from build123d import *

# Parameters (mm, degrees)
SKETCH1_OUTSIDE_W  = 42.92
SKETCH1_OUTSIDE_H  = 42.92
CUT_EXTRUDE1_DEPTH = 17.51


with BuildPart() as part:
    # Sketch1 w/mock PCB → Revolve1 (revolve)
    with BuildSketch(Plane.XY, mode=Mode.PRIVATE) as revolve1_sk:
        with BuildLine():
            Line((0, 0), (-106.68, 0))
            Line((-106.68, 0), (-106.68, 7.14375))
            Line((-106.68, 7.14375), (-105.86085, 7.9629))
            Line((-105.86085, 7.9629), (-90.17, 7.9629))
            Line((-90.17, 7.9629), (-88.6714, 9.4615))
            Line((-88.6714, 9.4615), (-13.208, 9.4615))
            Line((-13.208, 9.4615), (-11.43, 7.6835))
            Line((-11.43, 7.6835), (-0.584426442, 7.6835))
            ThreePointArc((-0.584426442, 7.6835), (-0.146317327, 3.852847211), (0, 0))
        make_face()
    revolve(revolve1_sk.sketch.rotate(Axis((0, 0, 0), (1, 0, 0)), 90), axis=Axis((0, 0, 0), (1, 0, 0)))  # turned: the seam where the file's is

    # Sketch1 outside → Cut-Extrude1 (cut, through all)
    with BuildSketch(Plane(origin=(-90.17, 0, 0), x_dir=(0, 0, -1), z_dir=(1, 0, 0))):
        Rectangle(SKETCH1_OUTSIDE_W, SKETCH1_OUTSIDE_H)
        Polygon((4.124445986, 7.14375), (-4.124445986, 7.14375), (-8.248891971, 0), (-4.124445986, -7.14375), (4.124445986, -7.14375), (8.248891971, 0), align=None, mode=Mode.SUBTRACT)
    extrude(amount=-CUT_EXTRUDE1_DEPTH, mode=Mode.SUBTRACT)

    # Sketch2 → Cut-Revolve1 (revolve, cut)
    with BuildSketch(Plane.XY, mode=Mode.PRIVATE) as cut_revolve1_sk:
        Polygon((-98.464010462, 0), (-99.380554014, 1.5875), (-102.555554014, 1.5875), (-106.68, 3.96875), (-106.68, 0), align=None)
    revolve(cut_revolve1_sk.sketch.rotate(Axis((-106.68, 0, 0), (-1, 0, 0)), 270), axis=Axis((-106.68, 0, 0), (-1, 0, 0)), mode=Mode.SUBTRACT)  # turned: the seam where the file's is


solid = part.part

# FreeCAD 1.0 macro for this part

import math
import FreeCAD as App
import Part
import Sketcher
from FreeCAD import Vector
Q = App.Units.Quantity


def add_polygon(sketch, points):
    """Adds a closed chain of lines whose ends are joined by coincident constraints."""
    first, n = sketch.GeometryCount, len(points)
    for a, b in zip(points, points[1:] + points[:1]):
        sketch.addGeometry(Part.LineSegment(App.Vector(*a, 0), App.Vector(*b, 0)), False)
    for i in range(n):
        sketch.addConstraint(Sketcher.Constraint("Coincident", first + i, 2, first + (i + 1) % n, 1))

doc = App.newDocument("Part")
body = doc.addObject("PartDesign::Body", "Body")

sketch1 = body.newObject("Sketcher::SketchObject", "Sketch")
sketch1.AttachmentSupport = (doc.getObject("XY_Plane"), [""])
sketch1.MapMode = "FlatFace"
sketch1.addGeometry([
    Part.LineSegment(Vector(-106.7, 0, 0), Vector(0, 0, 0)),
    Part.ArcOfCircle(Part.Circle(Vector(-50.8, 0, 0), Vector(0, 0, 1), 50.8), math.radians(0), math.radians(8.7)),
    Part.LineSegment(Vector(-0.6, 7.7, 0), Vector(-11.4, 7.7, 0)),
    Part.LineSegment(Vector(-11.4, 7.7, 0), Vector(-13.2, 9.5, 0)),
    Part.LineSegment(Vector(-13.2, 9.5, 0), Vector(-88.7, 9.5, 0)),
    Part.LineSegment(Vector(-88.7, 9.5, 0), Vector(-90.2, 8, 0)),
    Part.LineSegment(Vector(-90.2, 8, 0), Vector(-105.9, 8, 0)),
    Part.LineSegment(Vector(-105.9, 8, 0), Vector(-106.7, 7.1, 0)),
    Part.LineSegment(Vector(-106.7, 7.1, 0), Vector(-106.7, 0, 0)),
], False)
sketch1.addConstraint([
    Sketcher.Constraint("Coincident", 0, 2, 1, 1),
    Sketcher.Constraint("Coincident", 1, 2, 2, 1),
    Sketcher.Constraint("Coincident", 2, 2, 3, 1),
    Sketcher.Constraint("Coincident", 3, 2, 4, 1),
    Sketcher.Constraint("Coincident", 4, 2, 5, 1),
    Sketcher.Constraint("Coincident", 5, 2, 6, 1),
    Sketcher.Constraint("Coincident", 6, 2, 7, 1),
    Sketcher.Constraint("Coincident", 7, 2, 8, 1),
    Sketcher.Constraint("Coincident", 8, 2, 0, 1),
    Sketcher.Constraint("Horizontal", 0),
    Sketcher.Constraint("Horizontal", 2),
    Sketcher.Constraint("Horizontal", 4),
    Sketcher.Constraint("Horizontal", 6),
    Sketcher.Constraint("Vertical", 8),
    Sketcher.Constraint("Coincident", 0, 2, -1, 1),
    Sketcher.Constraint("PointOnObject", 1, 3, -1),
    Sketcher.Constraint("Perpendicular", 3, 5),
    Sketcher.Constraint("Parallel", 5, 7),
    Sketcher.Constraint("Radius", 1, Q("2 in")),
    Sketcher.Constraint("DistanceX", 0, 1, 0, 2, Q("4.2 in")),
    Sketcher.Constraint("Angle", 3, Q("135 deg")),
    Sketcher.Constraint("DistanceX", 5, 2, 2, 2, Q("3.1 in")),
    Sketcher.Constraint("DistanceX", 4, 2, 4, 1, Q("2.971 in")),
    Sketcher.Constraint("DistanceY", 8, 2, 8, 1, Q("0.28125 in")),
    Sketcher.Constraint("DistanceX", 2, 2, -1, 1, Q("0.45 in")),
    Sketcher.Constraint("DistanceX", 3, 2, -1, 1, Q("0.52 in")),
    Sketcher.Constraint("DistanceY", -1, 1, 1, 2, Q("0.3025 in")),
])
revolution = body.newObject("PartDesign::Revolution", "Revolution")
revolution.Profile = sketch1
revolution.ReferenceAxis = (sketch1, ["H_Axis"])
revolution.Angle = 360

sketch2 = body.newObject("Sketcher::SketchObject", "Sketch001")
sketch2.AttachmentSupport = (doc.getObject("YZ_Plane"), [""])
sketch2.MapMode = "FlatFace"
sketch2.AttachmentOffset = App.Placement(Vector(0, 0, -3.55 * 25.4), App.Rotation())
add_polygon(sketch2, [(21, 21), (-21, 21), (-21, -21), (21, -21)])
add_polygon(sketch2, [(7, 4), (7, -4), (0, -8), (-7, -4), (-7, 4), (0, 8)])
sketch2.addConstraint([
    Sketcher.Constraint("Horizontal", 0),
    Sketcher.Constraint("Vertical", 1),
    Sketcher.Constraint("Horizontal", 2),
    Sketcher.Constraint("Vertical", 3),
    Sketcher.Constraint("Vertical", 4),
    Sketcher.Constraint("Vertical", 7),
    Sketcher.Constraint("Symmetric", 0, 2, 2, 2, -1, 1),
    Sketcher.Constraint("Symmetric", 4, 2, 7, 2, -1, 1),
    Sketcher.Constraint("Symmetric", 5, 2, 8, 2, -1, 1),
    Sketcher.Constraint("PointOnObject", 5, 2, -2),
    Sketcher.Constraint("Parallel", 6, 9),
    Sketcher.Constraint("Horizontal", 4, 2, 6, 2),
    Sketcher.Constraint("Equal", 2, 1),
    Sketcher.Constraint("Angle", 5, Q("-150 deg")),
    Sketcher.Constraint("DistanceX", -1, 1, 4, 2, Q("0.28125 in")),
    Sketcher.Constraint("DistanceX", 0, 2, 0, 1, 42.92),
    Sketcher.Constraint("DistanceY", 4, 2, 4, 1, 8.248892),
])
pocket1 = body.newObject("PartDesign::Pocket", "Pocket")
pocket1.Profile = sketch2
pocket1.Type = "ThroughAll"

sketch3 = body.newObject("Sketcher::SketchObject", "Sketch002")
sketch3.AttachmentSupport = (doc.getObject("XY_Plane"), [""])
sketch3.MapMode = "FlatFace"
add_polygon(sketch3, [(-98.5, 0), (-99.4, 1.6), (-102.6, 1.6), (-106.7, 4), (-106.7, 0)])
sketch3.addConstraint([
    Sketcher.Constraint("Horizontal", 1),
    Sketcher.Constraint("Vertical", 3),
    Sketcher.Constraint("Horizontal", 4),
    Sketcher.Constraint("PointOnObject", 3, 2, -1),
    Sketcher.Constraint("Angle", 0, Q("120 deg")),
    Sketcher.Constraint("Angle", 2, Q("150 deg")),
    Sketcher.Constraint("DistanceX", 2, 2, -1, 1, Q("4.2 in")),
    Sketcher.Constraint("DistanceX", 1, 2, 1, 1, Q("0.125 in")),
    Sketcher.Constraint("DistanceY", 3, 2, 3, 1, Q("0.15625 in")),
    Sketcher.Constraint("Distance", 2, Q("0.1875 in")),
])
groove = body.newObject("PartDesign::Groove", "Groove")
groove.Profile = sketch3
groove.ReferenceAxis = (sketch3, ["H_Axis"])
groove.Angle = 360

doc.recompute()
